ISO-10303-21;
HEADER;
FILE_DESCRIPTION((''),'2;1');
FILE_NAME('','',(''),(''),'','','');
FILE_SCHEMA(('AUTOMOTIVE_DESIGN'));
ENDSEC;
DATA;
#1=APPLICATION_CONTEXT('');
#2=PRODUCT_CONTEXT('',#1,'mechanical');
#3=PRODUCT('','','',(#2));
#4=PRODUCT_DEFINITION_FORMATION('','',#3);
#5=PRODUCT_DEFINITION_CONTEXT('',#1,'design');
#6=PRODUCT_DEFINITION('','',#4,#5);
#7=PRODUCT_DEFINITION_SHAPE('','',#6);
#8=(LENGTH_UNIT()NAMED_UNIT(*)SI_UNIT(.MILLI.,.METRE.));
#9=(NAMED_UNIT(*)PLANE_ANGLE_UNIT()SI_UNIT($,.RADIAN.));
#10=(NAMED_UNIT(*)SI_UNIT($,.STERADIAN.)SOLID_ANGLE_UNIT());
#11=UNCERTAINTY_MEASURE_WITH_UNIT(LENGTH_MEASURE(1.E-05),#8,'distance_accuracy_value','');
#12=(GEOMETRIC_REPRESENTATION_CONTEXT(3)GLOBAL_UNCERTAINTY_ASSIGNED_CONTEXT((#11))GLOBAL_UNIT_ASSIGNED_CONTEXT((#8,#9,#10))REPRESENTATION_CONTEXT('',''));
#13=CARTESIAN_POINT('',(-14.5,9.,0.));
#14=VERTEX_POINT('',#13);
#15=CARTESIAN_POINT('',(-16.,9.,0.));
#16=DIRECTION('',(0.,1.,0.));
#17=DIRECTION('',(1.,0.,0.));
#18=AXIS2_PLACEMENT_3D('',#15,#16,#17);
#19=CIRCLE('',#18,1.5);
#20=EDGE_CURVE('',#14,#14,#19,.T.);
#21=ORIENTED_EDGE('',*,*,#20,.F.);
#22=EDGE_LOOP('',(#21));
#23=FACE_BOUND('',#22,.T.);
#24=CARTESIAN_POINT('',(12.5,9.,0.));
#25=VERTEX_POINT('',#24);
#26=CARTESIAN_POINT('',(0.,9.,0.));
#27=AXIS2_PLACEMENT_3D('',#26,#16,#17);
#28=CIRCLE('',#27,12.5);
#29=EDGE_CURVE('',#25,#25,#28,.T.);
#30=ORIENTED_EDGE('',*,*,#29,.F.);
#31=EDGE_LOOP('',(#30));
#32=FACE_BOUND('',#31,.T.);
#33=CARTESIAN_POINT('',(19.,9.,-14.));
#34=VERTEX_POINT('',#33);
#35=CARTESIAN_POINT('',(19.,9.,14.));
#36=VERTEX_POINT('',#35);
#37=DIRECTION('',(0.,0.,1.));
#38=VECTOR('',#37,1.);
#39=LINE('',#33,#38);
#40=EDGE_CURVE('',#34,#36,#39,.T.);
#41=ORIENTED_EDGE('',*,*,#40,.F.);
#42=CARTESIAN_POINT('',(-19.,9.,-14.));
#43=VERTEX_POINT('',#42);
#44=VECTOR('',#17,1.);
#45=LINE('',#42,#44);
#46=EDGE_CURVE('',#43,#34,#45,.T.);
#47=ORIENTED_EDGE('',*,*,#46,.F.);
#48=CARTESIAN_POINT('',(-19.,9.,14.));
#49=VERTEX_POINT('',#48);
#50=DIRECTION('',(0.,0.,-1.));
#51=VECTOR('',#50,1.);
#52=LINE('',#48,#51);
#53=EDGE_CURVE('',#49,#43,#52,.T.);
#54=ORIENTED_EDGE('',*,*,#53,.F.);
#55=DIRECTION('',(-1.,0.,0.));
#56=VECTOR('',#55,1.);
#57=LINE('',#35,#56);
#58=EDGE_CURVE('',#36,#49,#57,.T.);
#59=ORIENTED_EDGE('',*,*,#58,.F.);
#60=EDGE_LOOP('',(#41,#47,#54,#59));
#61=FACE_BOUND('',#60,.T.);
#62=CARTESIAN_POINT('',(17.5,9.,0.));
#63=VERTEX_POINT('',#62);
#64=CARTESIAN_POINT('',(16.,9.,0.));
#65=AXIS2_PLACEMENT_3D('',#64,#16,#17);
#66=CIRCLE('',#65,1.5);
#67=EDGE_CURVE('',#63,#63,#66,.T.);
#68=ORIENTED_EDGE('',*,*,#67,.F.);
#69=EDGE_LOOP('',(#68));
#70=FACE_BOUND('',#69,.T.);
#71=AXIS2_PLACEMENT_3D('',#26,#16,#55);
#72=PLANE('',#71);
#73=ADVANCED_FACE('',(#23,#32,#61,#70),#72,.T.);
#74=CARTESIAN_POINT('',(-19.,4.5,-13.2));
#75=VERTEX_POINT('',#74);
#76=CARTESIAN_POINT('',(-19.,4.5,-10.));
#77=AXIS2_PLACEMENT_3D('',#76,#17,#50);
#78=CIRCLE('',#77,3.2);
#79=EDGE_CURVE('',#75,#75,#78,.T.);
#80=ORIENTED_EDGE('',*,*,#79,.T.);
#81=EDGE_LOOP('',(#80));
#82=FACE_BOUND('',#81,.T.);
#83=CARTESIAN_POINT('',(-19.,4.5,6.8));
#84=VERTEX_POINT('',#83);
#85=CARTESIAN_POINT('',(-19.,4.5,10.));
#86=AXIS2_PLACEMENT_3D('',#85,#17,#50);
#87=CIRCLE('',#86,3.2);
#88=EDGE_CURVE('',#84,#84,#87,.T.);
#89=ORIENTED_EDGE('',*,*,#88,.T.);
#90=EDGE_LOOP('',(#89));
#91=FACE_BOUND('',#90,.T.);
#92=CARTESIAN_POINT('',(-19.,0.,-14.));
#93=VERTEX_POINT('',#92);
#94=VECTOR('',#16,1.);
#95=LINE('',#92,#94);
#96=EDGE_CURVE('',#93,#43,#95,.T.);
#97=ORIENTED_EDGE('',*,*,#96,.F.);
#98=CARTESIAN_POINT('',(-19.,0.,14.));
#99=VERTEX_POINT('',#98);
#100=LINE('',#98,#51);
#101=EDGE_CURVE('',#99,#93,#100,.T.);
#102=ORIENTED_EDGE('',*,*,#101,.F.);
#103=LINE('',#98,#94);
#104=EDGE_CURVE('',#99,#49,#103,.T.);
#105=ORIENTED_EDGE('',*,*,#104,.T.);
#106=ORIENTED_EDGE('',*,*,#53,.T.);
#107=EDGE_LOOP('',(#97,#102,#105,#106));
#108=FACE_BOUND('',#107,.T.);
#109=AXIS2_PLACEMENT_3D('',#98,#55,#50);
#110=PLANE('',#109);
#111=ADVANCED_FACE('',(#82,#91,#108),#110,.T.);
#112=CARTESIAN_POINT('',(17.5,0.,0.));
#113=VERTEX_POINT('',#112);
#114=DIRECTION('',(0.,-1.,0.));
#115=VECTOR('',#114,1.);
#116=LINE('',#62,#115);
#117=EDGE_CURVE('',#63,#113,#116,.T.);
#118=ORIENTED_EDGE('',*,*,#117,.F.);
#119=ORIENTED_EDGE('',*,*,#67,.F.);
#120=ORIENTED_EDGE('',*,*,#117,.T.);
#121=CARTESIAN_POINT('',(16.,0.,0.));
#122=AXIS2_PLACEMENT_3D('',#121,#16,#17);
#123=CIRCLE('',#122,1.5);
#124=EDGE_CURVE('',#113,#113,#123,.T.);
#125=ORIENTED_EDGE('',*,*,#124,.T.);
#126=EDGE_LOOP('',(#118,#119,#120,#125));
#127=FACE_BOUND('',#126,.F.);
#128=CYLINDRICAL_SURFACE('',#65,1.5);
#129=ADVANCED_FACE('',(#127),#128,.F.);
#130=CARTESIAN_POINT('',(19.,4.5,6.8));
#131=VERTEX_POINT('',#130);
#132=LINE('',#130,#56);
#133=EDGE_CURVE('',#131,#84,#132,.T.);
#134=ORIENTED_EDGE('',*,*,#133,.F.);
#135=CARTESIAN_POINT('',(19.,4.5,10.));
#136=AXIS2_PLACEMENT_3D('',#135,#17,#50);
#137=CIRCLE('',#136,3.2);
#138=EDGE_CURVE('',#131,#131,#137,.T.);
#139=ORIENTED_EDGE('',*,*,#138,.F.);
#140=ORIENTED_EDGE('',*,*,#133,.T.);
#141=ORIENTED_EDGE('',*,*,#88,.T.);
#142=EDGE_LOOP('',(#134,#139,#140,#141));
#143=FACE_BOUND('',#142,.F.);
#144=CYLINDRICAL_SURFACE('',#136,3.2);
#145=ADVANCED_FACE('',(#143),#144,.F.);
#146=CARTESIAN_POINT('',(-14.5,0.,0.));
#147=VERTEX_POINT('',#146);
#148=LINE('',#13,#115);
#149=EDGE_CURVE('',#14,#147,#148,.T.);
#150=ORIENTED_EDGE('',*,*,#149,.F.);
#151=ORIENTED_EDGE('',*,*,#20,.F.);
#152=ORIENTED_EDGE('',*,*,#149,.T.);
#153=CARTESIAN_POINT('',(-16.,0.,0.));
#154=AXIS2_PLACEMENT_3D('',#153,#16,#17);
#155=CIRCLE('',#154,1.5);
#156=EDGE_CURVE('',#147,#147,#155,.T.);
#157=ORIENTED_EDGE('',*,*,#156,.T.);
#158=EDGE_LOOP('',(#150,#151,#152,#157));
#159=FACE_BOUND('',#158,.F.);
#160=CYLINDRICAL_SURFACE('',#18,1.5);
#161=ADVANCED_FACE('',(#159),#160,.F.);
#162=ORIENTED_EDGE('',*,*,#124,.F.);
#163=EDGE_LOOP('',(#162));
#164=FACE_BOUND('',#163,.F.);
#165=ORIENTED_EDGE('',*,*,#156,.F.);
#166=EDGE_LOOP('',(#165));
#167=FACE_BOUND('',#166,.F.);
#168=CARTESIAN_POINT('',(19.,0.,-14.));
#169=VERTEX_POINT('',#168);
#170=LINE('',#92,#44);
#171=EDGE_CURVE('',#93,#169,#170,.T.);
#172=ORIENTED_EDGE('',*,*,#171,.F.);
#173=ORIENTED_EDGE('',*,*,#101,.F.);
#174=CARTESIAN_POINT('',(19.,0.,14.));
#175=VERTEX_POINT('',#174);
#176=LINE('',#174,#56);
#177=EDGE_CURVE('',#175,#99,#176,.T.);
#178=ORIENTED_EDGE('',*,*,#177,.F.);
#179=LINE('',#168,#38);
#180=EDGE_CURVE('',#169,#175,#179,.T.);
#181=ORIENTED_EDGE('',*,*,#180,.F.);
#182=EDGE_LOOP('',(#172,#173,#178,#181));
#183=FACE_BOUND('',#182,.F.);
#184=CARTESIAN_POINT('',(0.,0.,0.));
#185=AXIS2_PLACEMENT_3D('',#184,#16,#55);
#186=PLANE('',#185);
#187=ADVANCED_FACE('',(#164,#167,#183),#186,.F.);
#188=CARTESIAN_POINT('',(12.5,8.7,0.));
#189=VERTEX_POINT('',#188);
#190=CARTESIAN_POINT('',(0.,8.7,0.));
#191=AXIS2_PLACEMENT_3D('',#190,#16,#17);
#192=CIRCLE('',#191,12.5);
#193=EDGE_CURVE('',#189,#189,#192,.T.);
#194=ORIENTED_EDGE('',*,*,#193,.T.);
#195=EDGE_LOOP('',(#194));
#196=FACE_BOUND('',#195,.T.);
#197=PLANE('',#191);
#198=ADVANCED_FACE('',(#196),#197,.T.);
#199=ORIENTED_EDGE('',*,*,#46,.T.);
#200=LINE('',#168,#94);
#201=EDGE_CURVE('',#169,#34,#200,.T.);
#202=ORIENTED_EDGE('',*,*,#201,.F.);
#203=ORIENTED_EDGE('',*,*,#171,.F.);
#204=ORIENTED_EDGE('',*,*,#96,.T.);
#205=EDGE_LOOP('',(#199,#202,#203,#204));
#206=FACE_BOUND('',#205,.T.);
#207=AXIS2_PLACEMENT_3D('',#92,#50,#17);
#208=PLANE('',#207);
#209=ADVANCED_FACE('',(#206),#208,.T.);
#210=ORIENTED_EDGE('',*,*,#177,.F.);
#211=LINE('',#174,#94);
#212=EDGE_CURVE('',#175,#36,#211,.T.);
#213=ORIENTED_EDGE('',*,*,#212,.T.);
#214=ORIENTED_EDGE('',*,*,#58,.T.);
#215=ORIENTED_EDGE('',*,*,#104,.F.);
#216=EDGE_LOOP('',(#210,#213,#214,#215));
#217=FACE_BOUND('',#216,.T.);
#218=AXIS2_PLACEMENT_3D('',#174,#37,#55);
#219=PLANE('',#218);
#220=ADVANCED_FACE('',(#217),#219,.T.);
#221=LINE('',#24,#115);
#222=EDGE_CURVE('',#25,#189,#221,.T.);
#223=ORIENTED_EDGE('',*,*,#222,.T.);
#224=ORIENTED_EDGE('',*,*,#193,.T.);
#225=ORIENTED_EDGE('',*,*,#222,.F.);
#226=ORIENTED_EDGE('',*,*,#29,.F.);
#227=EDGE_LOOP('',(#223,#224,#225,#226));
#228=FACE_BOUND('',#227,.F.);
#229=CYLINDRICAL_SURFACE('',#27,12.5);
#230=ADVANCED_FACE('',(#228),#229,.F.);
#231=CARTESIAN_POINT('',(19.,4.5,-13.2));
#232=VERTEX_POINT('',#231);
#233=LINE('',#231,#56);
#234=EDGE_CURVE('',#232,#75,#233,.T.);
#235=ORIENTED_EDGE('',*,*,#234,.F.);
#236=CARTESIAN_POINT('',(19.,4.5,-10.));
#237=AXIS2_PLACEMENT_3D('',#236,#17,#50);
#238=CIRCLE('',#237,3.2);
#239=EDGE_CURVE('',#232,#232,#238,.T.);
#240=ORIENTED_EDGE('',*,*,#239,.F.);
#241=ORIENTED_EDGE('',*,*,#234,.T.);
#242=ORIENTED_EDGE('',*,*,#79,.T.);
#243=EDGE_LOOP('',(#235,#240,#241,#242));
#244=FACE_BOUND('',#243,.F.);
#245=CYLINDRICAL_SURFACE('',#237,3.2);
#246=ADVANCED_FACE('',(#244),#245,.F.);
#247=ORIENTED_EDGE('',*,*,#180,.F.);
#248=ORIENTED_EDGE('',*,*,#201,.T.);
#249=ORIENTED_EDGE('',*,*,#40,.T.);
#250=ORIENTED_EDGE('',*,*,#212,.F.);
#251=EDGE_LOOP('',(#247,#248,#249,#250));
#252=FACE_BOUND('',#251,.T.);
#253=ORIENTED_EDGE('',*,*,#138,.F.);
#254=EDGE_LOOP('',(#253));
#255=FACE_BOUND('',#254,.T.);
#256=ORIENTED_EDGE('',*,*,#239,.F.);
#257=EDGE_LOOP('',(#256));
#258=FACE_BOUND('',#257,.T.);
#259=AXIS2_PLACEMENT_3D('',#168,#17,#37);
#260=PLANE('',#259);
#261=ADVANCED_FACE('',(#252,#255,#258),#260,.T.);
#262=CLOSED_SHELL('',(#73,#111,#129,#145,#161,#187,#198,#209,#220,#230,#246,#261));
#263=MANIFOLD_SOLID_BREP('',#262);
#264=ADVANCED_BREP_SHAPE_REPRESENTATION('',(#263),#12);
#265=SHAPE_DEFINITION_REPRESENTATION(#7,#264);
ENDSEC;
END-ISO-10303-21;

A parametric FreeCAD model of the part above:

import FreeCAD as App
import Part
import Sketcher

doc = App.newDocument("Part")
body = doc.addObject("PartDesign::Body", "Body")

sketch1 = body.newObject("Sketcher::SketchObject", "Sketch")
sketch1.AttachmentSupport = (doc.getObject("XZ_Plane"), [""])
sketch1.MapMode = "FlatFace"
sketch1.addGeometry([
    Part.LineSegment(App.Vector(19, -14, 0), App.Vector(-19, -14, 0)),
    Part.LineSegment(App.Vector(-19, -14, 0), App.Vector(-19, 14, 0)),
    Part.LineSegment(App.Vector(-19, 14, 0), App.Vector(19, 14, 0)),
    Part.LineSegment(App.Vector(19, 14, 0), App.Vector(19, -14, 0)),
], False)
sketch1.addConstraint([
    Sketcher.Constraint("Coincident", 0, 2, 1, 1),
    Sketcher.Constraint("Coincident", 1, 2, 2, 1),
    Sketcher.Constraint("Coincident", 2, 2, 3, 1),
    Sketcher.Constraint("Coincident", 3, 2, 0, 1),
    Sketcher.Constraint("Horizontal", 0),
    Sketcher.Constraint("Vertical", 1),
    Sketcher.Constraint("Horizontal", 2),
    Sketcher.Constraint("Vertical", 3),
    Sketcher.Constraint("Symmetric", 0, 2, 2, 2, -1, 1),
    Sketcher.Constraint("DistanceX", 0, 2, 0, 1, 38.0),
    Sketcher.Constraint("DistanceY", 1, 1, 1, 2, 28.0),
])
pad1 = body.newObject("PartDesign::Pad", "Pad")
pad1.Profile = sketch1
pad1.Length = 9
pad1.Reversed = True

sketch2 = body.newObject("Sketcher::SketchObject", "Sketch001")
sketch2.AttachmentSupport = (doc.getObject("YZ_Plane"), [""])
sketch2.MapMode = "FlatFace"
sketch2.AttachmentOffset = App.Placement(App.Vector(0, 0, 19), App.Rotation())
sketch2.addGeometry([
    Part.Circle(App.Vector(4.5, 10, 0), App.Vector(0, 0, 1), 3.2),
    Part.Circle(App.Vector(4.5, -10, 0), App.Vector(0, 0, 1), 3.2),
], False)
sketch2.addConstraint([
    Sketcher.Constraint("Equal", 0, 1),
    Sketcher.Constraint("Symmetric", 0, 3, 1, 3, -1),
    Sketcher.Constraint("Diameter", 0, 6.4),
    Sketcher.Constraint("DistanceY", 1, 3, 0, 3, 20.0),
    Sketcher.Constraint("DistanceX", -1, 1, 0, 3, 4.5),
])
pocket1 = body.newObject("PartDesign::Pocket", "Pocket")
pocket1.Profile = sketch2
pocket1.Type = "ThroughAll"

sketch3 = body.newObject("Sketcher::SketchObject", "Sketch002")
sketch3.AttachmentSupport = (doc.getObject("XZ_Plane"), [""])
sketch3.MapMode = "FlatFace"
sketch3.AttachmentOffset = App.Placement(App.Vector(0, 0, -9), App.Rotation())
sketch3.addGeometry(Part.Circle(App.Vector(0, 0, 0), App.Vector(0, 0, 1), 12), False)
sketch3.addConstraint([
    Sketcher.Constraint("Coincident", 0, 3, -1, 1),
    Sketcher.Constraint("Diameter", 0, 25.0),
])
pocket2 = body.newObject("PartDesign::Pocket", "Pocket001")
pocket2.Profile = sketch3
pocket2.Length = 0.3
pocket2.Reversed = True

sketch4 = body.newObject("Sketcher::SketchObject", "Sketch003")
sketch4.AttachmentSupport = (doc.getObject("XZ_Plane"), [""])
sketch4.MapMode = "FlatFace"
sketch4.AttachmentOffset = App.Placement(App.Vector(0, 0, -9), App.Rotation())
sketch4.addGeometry([
    Part.Circle(App.Vector(-16, 0, 0), App.Vector(0, 0, 1), 1.5),
    Part.Circle(App.Vector(16, 0, 0), App.Vector(0, 0, 1), 1.5),
], False)
sketch4.addConstraint([
    Sketcher.Constraint("Equal", 0, 1),
    Sketcher.Constraint("Symmetric", 0, 3, 1, 3, -1, 1),
    Sketcher.Constraint("PointOnObject", 0, 3, -1),
    Sketcher.Constraint("Diameter", 0, 3.0),
    Sketcher.Constraint("DistanceX", 0, 3, -1, 1, 16.0),
])
pocket3 = body.newObject("PartDesign::Pocket", "Pocket002")
pocket3.Profile = sketch4
pocket3.Type = "ThroughAll"
pocket3.Reversed = True

doc.recompute()
